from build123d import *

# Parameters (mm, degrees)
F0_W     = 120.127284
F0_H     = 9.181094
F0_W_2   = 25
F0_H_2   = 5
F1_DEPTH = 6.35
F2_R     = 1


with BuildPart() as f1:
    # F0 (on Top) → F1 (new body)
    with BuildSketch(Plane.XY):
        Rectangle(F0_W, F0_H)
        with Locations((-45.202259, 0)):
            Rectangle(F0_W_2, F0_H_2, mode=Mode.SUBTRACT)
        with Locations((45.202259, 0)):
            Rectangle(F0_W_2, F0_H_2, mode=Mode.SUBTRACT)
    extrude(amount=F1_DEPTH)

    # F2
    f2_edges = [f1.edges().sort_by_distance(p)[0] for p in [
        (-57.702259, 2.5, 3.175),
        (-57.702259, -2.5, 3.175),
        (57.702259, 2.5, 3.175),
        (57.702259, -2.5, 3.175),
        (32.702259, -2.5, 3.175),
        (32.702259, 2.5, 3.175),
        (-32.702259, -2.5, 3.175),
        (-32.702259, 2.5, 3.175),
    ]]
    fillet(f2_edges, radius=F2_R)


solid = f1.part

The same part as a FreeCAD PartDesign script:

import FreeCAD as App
import Part
import Sketcher

V = App.Vector


def edges_at(feature, points):
    """Names of the edges that pass closest to the given points."""
    edges = feature.Shape.Edges
    near = lambda p: min(range(len(edges)), key=lambda i: edges[i].distToShape(Part.Vertex(*p))[0])
    return sorted({f"Edge{near(p) + 1}" for p in points})


def add_polygon(sketch, points):
    """Adds a closed chain of lines whose ends are joined by coincident constraints."""
    first, n = sketch.GeometryCount, len(points)
    for a, b in zip(points, points[1:] + points[:1]):
        sketch.addGeometry(Part.LineSegment(App.Vector(*a, 0), App.Vector(*b, 0)), False)
    for i in range(n):
        sketch.addConstraint(Sketcher.Constraint("Coincident", first + i, 2, first + (i + 1) % n, 1))

doc = App.newDocument("Part")
body = doc.addObject("PartDesign::Body", "Body")

sketch1 = doc.addObject("Sketcher::SketchObject", "Sketch")
body.addObject(sketch1)
sketch1.AttachmentSupport = (doc.XY_Plane, [""])
sketch1.MapMode = "FlatFace"
add_polygon(sketch1, [(-60, 5), (-60, -5), (60, -5), (60, 5)])
add_polygon(sketch1, [(-33, -2), (-58, -2), (-58, 2), (-33, 2)])
add_polygon(sketch1, [(58, -2), (33, -2), (33, 2), (58, 2)])
sketch1.addConstraint(Sketcher.Constraint("Vertical", 0))
sketch1.addConstraint(Sketcher.Constraint("Horizontal", 1))
sketch1.addConstraint(Sketcher.Constraint("Vertical", 2))
sketch1.addConstraint(Sketcher.Constraint("Horizontal", 3))
sketch1.addConstraint(Sketcher.Constraint("Horizontal", 4))
sketch1.addConstraint(Sketcher.Constraint("Vertical", 5))
sketch1.addConstraint(Sketcher.Constraint("Horizontal", 6))
sketch1.addConstraint(Sketcher.Constraint("Vertical", 7))
sketch1.addConstraint(Sketcher.Constraint("Horizontal", 8))
sketch1.addConstraint(Sketcher.Constraint("Vertical", 9))
sketch1.addConstraint(Sketcher.Constraint("Horizontal", 10))
sketch1.addConstraint(Sketcher.Constraint("Vertical", 11))
sketch1.addConstraint(Sketcher.Constraint("Symmetric", 0, 2, 2, 2, -1, 1))
sketch1.addConstraint(Sketcher.Constraint("Symmetric", 6, 2, 8, 2, -1, 1))
sketch1.addConstraint(Sketcher.Constraint("Symmetric", 4, 2, 10, 2, -1, 1))
sketch1.addConstraint(Sketcher.Constraint("Horizontal", 7, 2, 8, 2))
sketch1.addConstraint(Sketcher.Constraint("DistanceX", 4, 2, 4, 1, 25.0))
sketch1.addConstraint(Sketcher.Constraint("DistanceY", 5, 1, 5, 2, 5.0))
sketch1.addConstraint(Sketcher.Constraint("DistanceX", 4, 2, 1, 2, 117.765901))
sketch1.addConstraint(Sketcher.Constraint("DistanceX", 1, 1, 1, 2, 120.127284))
sketch1.addConstraint(Sketcher.Constraint("DistanceY", 0, 2, 0, 1, 9.181094))
pad1 = doc.addObject("PartDesign::Pad", "Pad")
body.addObject(pad1)
pad1.Profile = sketch1
pad1.Length = 6.35
doc.recompute()

fillet = doc.addObject("PartDesign::Fillet", "Fillet")
body.addObject(fillet)
fillet.Base = (pad1, edges_at(pad1, [
    (-57.702, 2.5, 3.175),
    (-57.702, -2.5, 3.175),
    (57.702, 2.5, 3.175),
    (57.702, -2.5, 3.175),
    (32.702, -2.5, 3.175),
    (32.702, 2.5, 3.175),
    (-32.702, -2.5, 3.175),
    (-32.702, 2.5, 3.175),
]))
fillet.Radius = 1

doc.recompute()
